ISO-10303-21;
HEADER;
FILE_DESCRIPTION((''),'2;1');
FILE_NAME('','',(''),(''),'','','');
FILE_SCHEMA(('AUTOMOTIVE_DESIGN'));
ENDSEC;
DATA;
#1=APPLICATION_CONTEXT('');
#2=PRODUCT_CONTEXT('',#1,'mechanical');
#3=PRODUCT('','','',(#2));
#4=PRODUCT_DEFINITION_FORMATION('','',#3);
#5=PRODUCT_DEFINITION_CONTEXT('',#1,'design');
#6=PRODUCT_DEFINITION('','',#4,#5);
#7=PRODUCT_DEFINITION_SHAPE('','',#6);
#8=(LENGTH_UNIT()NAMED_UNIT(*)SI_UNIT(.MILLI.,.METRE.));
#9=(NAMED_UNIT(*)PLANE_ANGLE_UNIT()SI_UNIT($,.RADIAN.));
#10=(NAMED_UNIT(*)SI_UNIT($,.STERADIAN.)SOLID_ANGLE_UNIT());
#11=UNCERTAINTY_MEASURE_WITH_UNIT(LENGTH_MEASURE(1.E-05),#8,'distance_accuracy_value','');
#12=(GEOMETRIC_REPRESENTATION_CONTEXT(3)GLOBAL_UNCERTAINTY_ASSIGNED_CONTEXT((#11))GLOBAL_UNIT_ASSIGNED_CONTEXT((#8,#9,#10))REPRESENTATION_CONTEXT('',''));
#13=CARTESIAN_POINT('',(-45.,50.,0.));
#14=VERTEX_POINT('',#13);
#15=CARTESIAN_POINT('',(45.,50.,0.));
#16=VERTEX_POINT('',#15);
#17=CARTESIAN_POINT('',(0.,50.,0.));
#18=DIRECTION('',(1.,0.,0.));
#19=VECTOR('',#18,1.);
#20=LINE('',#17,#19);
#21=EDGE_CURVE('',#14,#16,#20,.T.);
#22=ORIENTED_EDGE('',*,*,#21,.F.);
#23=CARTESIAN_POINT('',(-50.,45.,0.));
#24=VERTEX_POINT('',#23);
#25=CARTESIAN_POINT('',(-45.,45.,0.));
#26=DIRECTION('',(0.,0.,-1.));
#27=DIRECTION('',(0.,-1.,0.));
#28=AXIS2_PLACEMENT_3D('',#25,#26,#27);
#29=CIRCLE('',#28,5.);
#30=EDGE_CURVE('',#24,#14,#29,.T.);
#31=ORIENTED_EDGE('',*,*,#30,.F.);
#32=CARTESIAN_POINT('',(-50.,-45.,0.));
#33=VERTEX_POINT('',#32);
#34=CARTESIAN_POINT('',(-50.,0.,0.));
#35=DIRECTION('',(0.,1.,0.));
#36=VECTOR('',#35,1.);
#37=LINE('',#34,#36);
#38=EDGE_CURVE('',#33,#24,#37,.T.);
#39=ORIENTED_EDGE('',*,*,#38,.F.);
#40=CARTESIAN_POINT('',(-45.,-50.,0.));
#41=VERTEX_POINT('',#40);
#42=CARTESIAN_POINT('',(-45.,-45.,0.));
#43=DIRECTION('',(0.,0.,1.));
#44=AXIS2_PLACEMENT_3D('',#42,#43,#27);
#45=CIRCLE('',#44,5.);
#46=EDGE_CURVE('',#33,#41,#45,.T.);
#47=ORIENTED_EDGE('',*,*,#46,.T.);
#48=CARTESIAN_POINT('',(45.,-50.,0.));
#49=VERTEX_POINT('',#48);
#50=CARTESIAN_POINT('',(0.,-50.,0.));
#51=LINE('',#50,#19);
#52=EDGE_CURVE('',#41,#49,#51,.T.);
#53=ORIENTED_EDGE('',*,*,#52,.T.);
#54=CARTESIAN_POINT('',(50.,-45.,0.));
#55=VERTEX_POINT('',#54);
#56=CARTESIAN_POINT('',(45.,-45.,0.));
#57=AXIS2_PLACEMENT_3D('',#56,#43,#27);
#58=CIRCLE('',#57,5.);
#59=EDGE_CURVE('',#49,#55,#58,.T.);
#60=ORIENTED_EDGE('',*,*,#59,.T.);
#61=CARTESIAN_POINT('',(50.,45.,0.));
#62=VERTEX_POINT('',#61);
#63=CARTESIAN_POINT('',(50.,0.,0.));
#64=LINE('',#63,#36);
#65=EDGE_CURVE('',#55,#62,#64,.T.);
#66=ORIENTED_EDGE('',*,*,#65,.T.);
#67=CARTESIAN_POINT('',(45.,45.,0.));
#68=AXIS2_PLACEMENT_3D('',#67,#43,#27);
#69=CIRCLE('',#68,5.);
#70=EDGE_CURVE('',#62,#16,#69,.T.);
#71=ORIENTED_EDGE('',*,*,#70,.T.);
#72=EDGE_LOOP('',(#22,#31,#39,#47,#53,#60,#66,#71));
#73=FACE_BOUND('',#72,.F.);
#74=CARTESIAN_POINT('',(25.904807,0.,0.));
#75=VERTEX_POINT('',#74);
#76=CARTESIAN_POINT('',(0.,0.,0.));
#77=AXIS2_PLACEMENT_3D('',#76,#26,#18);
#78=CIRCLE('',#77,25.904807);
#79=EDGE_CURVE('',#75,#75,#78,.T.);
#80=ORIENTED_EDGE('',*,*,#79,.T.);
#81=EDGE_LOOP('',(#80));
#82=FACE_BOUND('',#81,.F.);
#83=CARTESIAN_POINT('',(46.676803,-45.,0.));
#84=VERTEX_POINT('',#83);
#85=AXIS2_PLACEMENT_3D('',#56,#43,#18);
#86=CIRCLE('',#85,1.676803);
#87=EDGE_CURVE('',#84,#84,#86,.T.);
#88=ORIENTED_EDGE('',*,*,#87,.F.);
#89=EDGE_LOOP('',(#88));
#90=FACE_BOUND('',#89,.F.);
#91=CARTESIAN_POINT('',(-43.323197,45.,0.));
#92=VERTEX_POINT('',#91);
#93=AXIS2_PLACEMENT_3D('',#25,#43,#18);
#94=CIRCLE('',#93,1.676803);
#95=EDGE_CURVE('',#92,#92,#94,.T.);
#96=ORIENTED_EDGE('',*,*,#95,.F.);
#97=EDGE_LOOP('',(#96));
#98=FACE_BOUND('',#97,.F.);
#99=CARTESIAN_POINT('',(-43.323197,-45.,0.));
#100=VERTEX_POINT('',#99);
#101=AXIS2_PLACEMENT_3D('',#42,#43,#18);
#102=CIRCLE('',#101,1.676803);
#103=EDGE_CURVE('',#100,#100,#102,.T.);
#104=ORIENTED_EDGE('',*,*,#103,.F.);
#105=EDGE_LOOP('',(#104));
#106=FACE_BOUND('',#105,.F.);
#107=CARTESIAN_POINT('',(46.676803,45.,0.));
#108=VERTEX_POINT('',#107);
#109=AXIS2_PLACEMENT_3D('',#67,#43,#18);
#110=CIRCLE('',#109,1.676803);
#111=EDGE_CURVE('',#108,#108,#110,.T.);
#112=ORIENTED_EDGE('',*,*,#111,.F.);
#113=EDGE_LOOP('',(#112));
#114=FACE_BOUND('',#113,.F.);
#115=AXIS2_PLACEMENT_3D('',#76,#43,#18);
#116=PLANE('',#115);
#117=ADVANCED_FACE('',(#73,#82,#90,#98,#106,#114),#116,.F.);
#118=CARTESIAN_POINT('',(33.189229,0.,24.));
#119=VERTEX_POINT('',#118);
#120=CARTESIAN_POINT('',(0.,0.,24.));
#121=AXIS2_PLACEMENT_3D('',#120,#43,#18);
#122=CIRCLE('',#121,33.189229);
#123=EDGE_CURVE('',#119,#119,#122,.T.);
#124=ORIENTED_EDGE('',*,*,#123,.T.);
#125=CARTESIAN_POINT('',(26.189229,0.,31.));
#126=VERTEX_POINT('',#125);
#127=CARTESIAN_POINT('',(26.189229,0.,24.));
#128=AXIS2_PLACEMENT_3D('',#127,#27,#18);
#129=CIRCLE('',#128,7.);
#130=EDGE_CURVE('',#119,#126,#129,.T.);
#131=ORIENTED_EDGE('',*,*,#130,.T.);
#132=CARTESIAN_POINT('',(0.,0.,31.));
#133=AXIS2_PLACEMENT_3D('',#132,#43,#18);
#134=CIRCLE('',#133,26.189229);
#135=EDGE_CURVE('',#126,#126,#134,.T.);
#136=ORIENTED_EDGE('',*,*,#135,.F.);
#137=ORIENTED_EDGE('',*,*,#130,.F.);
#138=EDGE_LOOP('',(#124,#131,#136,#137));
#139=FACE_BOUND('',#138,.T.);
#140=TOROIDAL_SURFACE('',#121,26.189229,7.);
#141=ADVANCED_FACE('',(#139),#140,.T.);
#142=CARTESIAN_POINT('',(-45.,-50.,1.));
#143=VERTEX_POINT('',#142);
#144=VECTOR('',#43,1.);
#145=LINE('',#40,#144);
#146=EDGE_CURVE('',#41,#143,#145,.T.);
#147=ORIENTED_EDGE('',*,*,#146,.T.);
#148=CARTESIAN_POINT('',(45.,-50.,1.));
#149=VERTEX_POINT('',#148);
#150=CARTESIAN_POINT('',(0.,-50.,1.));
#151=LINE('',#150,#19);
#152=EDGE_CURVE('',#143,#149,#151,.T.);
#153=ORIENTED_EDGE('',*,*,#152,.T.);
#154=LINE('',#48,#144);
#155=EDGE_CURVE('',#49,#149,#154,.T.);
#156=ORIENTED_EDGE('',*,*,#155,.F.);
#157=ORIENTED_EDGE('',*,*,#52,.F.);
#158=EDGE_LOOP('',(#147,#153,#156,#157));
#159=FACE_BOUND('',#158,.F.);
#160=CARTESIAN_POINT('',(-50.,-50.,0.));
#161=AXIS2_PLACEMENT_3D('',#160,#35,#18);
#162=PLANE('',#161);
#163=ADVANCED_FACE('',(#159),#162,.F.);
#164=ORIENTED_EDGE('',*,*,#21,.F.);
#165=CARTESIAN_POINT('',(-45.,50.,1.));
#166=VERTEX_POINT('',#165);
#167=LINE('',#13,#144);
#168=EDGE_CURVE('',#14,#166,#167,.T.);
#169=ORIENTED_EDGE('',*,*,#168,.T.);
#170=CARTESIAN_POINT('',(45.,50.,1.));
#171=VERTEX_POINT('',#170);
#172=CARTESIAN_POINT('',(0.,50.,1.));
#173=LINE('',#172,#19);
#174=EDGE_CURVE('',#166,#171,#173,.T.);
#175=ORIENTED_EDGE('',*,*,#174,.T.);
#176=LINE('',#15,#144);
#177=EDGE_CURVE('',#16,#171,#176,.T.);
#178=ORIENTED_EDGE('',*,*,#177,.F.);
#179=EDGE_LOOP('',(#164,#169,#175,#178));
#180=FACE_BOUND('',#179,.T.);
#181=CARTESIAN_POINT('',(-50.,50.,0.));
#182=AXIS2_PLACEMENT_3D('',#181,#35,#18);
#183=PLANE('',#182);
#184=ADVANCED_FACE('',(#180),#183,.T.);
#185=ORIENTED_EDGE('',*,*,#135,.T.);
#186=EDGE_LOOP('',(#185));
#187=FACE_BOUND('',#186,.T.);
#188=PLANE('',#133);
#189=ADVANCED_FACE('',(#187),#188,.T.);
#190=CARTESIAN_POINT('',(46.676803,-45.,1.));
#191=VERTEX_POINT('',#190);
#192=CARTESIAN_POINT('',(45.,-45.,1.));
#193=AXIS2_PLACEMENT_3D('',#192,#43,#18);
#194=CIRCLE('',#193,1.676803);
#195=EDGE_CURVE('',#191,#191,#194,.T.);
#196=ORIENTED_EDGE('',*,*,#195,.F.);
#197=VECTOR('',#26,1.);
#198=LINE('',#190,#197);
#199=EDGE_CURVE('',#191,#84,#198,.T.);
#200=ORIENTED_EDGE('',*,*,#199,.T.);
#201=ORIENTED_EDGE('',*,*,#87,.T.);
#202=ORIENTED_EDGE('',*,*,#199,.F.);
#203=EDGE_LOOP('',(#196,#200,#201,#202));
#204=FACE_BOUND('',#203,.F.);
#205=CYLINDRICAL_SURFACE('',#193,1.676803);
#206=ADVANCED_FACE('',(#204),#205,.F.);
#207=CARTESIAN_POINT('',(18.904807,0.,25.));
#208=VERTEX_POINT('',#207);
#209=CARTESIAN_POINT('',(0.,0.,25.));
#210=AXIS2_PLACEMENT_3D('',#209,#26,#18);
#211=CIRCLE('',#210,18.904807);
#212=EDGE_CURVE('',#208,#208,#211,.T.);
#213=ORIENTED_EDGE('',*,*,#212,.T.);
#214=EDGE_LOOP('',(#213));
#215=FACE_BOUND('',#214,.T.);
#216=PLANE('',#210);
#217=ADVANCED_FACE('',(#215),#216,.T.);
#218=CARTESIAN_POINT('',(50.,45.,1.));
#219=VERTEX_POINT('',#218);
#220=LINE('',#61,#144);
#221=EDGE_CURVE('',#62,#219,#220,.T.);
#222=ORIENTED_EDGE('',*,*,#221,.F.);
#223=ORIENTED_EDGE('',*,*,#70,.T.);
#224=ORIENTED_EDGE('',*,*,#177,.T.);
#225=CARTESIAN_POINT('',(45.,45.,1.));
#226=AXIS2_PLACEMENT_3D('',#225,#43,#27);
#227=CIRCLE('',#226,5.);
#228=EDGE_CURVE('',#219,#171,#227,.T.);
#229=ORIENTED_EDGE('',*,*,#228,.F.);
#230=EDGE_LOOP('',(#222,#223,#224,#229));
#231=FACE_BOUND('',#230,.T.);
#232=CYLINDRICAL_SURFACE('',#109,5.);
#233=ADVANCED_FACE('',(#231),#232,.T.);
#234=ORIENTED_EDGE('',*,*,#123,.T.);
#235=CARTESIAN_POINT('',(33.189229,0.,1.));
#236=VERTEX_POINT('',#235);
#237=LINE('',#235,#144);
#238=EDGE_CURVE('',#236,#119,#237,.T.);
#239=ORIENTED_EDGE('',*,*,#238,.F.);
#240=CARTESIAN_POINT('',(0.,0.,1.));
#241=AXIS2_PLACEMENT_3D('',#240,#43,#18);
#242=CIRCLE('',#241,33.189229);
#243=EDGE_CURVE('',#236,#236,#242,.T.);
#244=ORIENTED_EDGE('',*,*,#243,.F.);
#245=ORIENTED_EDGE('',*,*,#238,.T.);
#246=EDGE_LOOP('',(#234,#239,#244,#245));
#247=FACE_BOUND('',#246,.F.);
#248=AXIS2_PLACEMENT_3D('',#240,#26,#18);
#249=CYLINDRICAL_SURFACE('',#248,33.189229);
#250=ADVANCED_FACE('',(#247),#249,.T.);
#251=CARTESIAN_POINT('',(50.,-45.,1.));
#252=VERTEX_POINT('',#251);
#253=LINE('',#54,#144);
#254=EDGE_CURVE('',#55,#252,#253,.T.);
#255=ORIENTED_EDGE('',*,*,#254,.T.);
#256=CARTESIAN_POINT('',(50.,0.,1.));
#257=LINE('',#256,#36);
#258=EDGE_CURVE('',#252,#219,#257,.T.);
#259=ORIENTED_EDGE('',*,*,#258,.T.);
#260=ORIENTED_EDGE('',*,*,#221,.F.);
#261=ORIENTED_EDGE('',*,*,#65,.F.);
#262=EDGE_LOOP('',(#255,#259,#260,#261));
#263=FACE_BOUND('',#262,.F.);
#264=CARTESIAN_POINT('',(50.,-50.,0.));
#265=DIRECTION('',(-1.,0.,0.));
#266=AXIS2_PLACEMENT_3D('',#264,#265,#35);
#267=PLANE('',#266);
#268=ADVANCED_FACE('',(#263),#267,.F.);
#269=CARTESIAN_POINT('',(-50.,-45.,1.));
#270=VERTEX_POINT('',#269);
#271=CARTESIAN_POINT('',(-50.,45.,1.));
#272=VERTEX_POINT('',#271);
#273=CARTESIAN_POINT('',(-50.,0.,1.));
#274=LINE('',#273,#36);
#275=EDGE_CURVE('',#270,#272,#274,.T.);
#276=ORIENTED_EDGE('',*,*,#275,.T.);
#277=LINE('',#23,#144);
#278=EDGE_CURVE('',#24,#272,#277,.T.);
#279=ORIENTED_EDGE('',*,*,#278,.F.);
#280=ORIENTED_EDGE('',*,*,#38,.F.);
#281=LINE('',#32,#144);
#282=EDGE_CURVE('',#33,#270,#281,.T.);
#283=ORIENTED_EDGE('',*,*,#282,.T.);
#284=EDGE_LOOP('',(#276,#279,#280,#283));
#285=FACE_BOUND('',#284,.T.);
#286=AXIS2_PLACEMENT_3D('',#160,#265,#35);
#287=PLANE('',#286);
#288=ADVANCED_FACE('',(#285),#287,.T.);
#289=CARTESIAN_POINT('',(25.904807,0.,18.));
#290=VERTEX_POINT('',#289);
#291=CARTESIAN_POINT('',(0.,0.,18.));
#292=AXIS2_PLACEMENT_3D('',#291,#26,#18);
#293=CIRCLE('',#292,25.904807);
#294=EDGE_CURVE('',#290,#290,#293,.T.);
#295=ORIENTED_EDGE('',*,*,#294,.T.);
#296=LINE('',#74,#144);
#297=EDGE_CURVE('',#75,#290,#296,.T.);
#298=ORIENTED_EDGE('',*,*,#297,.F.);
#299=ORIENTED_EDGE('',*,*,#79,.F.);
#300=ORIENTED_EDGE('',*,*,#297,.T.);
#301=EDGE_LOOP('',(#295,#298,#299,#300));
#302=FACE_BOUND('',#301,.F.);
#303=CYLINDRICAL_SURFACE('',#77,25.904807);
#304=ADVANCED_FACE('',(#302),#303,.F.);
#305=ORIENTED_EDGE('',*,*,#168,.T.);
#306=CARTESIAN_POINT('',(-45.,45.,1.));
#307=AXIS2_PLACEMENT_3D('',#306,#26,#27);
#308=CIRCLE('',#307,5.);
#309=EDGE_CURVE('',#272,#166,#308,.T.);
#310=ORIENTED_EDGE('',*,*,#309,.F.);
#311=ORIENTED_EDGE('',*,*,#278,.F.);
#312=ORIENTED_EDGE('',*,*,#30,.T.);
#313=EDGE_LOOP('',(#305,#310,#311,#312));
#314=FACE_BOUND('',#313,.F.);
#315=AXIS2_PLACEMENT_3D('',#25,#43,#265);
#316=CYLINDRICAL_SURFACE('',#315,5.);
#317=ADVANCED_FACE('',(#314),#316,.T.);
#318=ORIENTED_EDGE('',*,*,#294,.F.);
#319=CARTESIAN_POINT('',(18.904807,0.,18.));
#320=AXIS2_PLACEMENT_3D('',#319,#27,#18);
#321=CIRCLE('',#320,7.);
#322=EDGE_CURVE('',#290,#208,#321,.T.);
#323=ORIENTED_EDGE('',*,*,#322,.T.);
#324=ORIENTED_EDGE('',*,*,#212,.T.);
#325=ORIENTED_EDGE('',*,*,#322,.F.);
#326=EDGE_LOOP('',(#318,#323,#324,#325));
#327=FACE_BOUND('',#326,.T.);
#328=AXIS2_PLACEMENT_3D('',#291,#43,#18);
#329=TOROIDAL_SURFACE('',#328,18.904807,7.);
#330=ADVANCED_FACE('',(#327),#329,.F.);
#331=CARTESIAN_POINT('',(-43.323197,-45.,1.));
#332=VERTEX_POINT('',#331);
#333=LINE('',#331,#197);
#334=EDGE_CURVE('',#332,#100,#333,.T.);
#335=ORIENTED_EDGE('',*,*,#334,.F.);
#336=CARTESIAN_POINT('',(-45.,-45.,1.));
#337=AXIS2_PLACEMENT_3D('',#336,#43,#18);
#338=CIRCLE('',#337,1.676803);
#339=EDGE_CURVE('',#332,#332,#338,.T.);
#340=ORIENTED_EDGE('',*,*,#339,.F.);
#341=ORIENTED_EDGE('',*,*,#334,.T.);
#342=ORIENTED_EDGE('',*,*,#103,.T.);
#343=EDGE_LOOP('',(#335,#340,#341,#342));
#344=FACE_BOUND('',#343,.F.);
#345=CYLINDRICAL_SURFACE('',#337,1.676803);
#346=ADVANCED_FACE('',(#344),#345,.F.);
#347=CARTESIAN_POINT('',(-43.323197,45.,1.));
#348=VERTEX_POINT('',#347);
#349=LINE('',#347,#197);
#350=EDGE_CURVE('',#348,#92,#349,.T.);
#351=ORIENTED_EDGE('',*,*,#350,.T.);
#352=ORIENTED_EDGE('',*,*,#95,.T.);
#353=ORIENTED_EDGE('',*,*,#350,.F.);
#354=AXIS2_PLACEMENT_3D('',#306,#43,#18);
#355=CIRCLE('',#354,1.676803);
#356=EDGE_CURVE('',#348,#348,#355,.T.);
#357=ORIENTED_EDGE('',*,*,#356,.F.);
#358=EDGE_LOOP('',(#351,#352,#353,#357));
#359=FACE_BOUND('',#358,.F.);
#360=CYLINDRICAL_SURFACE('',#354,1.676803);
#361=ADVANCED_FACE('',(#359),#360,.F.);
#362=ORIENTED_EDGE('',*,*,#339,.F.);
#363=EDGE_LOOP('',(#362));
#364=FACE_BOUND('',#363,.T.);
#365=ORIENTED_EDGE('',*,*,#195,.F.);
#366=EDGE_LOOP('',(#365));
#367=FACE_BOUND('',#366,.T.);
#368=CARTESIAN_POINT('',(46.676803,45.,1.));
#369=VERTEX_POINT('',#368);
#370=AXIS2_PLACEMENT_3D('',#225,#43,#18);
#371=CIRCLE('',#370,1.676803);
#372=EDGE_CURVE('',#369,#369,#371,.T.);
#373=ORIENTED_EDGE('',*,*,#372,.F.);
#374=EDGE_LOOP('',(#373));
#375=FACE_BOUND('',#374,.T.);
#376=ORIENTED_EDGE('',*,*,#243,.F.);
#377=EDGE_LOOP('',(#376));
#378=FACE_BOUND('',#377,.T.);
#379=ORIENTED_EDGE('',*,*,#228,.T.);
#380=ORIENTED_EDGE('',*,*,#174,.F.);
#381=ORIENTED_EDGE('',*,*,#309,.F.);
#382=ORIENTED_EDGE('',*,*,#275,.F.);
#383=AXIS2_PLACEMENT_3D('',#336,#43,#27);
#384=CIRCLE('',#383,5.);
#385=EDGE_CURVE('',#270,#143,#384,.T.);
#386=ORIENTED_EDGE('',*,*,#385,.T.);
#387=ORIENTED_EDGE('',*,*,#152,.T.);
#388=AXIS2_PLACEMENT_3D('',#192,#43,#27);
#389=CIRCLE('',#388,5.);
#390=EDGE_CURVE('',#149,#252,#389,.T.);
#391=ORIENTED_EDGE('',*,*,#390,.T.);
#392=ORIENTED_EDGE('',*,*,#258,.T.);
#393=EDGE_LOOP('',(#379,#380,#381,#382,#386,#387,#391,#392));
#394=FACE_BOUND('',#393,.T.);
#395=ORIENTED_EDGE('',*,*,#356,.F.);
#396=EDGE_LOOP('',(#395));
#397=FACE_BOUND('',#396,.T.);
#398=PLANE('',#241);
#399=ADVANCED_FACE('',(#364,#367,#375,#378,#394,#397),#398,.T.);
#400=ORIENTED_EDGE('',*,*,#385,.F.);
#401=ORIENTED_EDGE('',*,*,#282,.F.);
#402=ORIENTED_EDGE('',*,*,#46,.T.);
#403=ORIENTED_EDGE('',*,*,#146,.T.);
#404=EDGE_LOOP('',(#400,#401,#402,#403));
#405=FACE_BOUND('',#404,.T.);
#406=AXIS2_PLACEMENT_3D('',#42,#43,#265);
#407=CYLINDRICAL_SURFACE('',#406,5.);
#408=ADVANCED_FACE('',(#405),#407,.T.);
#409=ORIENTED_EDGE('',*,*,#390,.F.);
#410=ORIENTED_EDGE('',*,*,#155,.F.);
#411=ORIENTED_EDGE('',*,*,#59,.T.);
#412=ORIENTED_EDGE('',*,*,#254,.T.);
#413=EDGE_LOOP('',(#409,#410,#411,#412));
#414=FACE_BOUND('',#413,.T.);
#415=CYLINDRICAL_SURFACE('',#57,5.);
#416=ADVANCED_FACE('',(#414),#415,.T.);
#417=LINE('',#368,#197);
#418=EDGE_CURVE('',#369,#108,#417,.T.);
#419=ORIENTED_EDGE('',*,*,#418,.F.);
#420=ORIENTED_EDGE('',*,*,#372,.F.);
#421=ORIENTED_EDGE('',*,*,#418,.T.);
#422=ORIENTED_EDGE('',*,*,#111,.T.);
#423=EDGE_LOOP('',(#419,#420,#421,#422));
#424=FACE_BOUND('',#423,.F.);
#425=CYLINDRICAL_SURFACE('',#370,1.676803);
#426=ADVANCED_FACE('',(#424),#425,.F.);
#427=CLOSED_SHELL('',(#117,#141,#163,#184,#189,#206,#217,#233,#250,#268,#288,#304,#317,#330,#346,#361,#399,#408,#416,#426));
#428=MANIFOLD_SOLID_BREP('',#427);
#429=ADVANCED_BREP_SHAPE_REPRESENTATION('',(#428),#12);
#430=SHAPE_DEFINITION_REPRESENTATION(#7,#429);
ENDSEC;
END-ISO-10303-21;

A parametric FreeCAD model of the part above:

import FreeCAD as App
import Part
import Sketcher
Q = App.Units.Quantity


def edges_at(feature, points):
    """Names of the edges that pass closest to the given points."""
    edges = feature.Shape.Edges
    near = lambda p: min(range(len(edges)), key=lambda i: edges[i].distToShape(Part.Vertex(*p))[0])
    return sorted({f"Edge{near(p) + 1}" for p in points})


def add_polygon(sketch, points):
    """Adds a closed chain of lines whose ends are joined by coincident constraints."""
    first, n = sketch.GeometryCount, len(points)
    for a, b in zip(points, points[1:] + points[:1]):
        sketch.addGeometry(Part.LineSegment(App.Vector(*a, 0), App.Vector(*b, 0)), False)
    for i in range(n):
        sketch.addConstraint(Sketcher.Constraint("Coincident", first + i, 2, first + (i + 1) % n, 1))

doc = App.newDocument("Part")
params = doc.addObject("Spreadsheet::Sheet", "Params")
for row, (alias, value) in enumerate([
    ("sketch1_width", "100 mm"),
    ("pad1_length", "1 mm"),
    ("fillet_radius", "5 mm"),
    ("pocket1_length", "25 mm"),
    ("pad2_length", "30 mm"),
    ("pocket2_length", "25 mm"),
    ("fillet2_radius", "7 mm"),
], start=1):
    params.set(f"A{row}", alias)
    params.set(f"B{row}", "=" + value)
    params.setAlias(f"B{row}", alias)

body = doc.addObject("PartDesign::Body", "Body")

sketch1 = body.newObject("Sketcher::SketchObject", "Sketch")
sketch1.AttachmentSupport = (doc.getObject("XY_Plane"), [""])
sketch1.MapMode = "FlatFace"
add_polygon(sketch1, [(-50, 50), (-50, -50), (50, -50), (50, 50)])
sketch1.addConstraint(Sketcher.Constraint("Vertical", 0))
sketch1.addConstraint(Sketcher.Constraint("Horizontal", 1))
sketch1.addConstraint(Sketcher.Constraint("Vertical", 2))
sketch1.addConstraint(Sketcher.Constraint("Horizontal", 3))
sketch1.addConstraint(Sketcher.Constraint("Symmetric", 0, 2, 2, 2, -1, 1))
sketch1.addConstraint(Sketcher.Constraint("Equal", 3, 0))
sketch1.addConstraint(Sketcher.Constraint("DistanceX", 1, 1, 1, 2, Q("100 mm")))
sketch1.setExpression("Constraints[10]", "Params.sketch1_width")
pad1 = body.newObject("PartDesign::Pad", "Pad")
pad1.Profile = sketch1
pad1.setExpression("Length", "Params.pad1_length")
doc.recompute()

fillet = body.newObject("PartDesign::Fillet", "Fillet")
fillet.Base = (pad1, edges_at(pad1, [
    (50, -50, 0.5),
    (-50, -50, 0.5),
    (-50, 50, 0.5),
    (50, 50, 0.5),
]))
fillet.setExpression("Radius", "Params.fillet_radius")

sketch2 = body.newObject("Sketcher::SketchObject", "Sketch001")
sketch2.AttachmentSupport = (doc.getObject("XY_Plane"), [""])
sketch2.MapMode = "FlatFace"
sketch2.AttachmentOffset = App.Placement(App.Vector(0, 0, 1), App.Rotation())
sketch2.addGeometry(Part.Circle(App.Vector(45, 45, 0), App.Vector(0, 0, 1), 1.676803), False)
sketch2.addGeometry(Part.Circle(App.Vector(-45, 45, 0), App.Vector(0, 0, 1), 1.676803), False)
sketch2.addGeometry(Part.Circle(App.Vector(-45, -45, 0), App.Vector(0, 0, 1), 1.676803), False)
sketch2.addGeometry(Part.Circle(App.Vector(45, -45, 0), App.Vector(0, 0, 1), 1.676803), False)
sketch2.addConstraint(Sketcher.Constraint("Equal", 0, 1))
sketch2.addConstraint(Sketcher.Constraint("Equal", 1, 2))
sketch2.addConstraint(Sketcher.Constraint("Equal", 2, 3))
sketch2.addConstraint(Sketcher.Constraint("Symmetric", 0, 3, 2, 3, -1, 1))
sketch2.addConstraint(Sketcher.Constraint("Symmetric", 1, 3, 3, 3, -1, 1))
sketch2.addConstraint(Sketcher.Constraint("Symmetric", 0, 3, 1, 3, -2))
sketch2.addConstraint(Sketcher.Constraint("DistanceX", -1, 1, 0, 3, Q("45 mm")))
sketch2.addConstraint(Sketcher.Constraint("DistanceY", -1, 1, 0, 3, Q("45 mm")))
sketch2.addConstraint(Sketcher.Constraint("Diameter", 0, Q("3.353606 mm")))
pocket1 = body.newObject("PartDesign::Pocket", "Pocket")
pocket1.Profile = sketch2
pocket1.setExpression("Length", "Params.pocket1_length")

sketch3 = body.newObject("Sketcher::SketchObject", "Sketch002")
sketch3.AttachmentSupport = (doc.getObject("XY_Plane"), [""])
sketch3.MapMode = "FlatFace"
sketch3.AttachmentOffset = App.Placement(App.Vector(0, 0, 1), App.Rotation())
sketch3.addGeometry(Part.Circle(App.Vector(0, 0, 0), App.Vector(0, 0, 1), 33.189229), False)
sketch3.addConstraint(Sketcher.Constraint("Coincident", 0, 3, -1, 1))
sketch3.addConstraint(Sketcher.Constraint("Diameter", 0, Q("66.378458 mm")))
pad2 = body.newObject("PartDesign::Pad", "Pad001")
pad2.Profile = sketch3
pad2.setExpression("Length", "Params.pad2_length")

sketch4 = body.newObject("Sketcher::SketchObject", "Sketch003")
sketch4.AttachmentSupport = (doc.getObject("XY_Plane"), [""])
sketch4.MapMode = "FlatFace"
sketch4.addGeometry(Part.Circle(App.Vector(0, 0, 0), App.Vector(0, 0, 1), 25.904807), False)
sketch4.addConstraint(Sketcher.Constraint("Coincident", 0, 3, -1, 1))
sketch4.addConstraint(Sketcher.Constraint("Diameter", 0, Q("51.809614 mm")))
pocket2 = body.newObject("PartDesign::Pocket", "Pocket001")
pocket2.Profile = sketch4
pocket2.setExpression("Length", "Params.pocket2_length")
pocket2.Reversed = True
doc.recompute()

fillet2 = body.newObject("PartDesign::Fillet", "Fillet001")
fillet2.Base = (pocket2, edges_at(pocket2, [(-33.189, 0, 31), (-25.905, 0, 25)]))
fillet2.setExpression("Radius", "Params.fillet2_radius")

doc.recompute()
